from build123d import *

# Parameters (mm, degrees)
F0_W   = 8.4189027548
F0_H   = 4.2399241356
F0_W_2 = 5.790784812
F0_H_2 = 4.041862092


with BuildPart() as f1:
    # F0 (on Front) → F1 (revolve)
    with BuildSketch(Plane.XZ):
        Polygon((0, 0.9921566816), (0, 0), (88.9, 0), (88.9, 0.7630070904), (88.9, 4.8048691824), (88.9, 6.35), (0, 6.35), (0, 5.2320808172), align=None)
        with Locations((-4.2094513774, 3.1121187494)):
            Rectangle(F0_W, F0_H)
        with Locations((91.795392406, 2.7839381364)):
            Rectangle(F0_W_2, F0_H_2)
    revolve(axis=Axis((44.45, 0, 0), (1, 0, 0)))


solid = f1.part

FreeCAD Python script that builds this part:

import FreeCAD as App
import Part
import Sketcher

V = App.Vector
Q = App.Units.Quantity

doc = App.newDocument("Part")
body = doc.addObject("PartDesign::Body", "Body")

sketch1 = body.newObject("Sketcher::SketchObject", "Sketch")
sketch1.AttachmentSupport = (doc.getObject("XZ_Plane"), [""])
sketch1.MapMode = "FlatFace"
sketch1.addGeometry(Part.LineSegment(V(0, 0, 0), V(88.9, 0, 0)), False)
sketch1.addGeometry(Part.LineSegment(V(88.9, 0, 0), V(88.9, 0.8, 0)), False)
sketch1.addGeometry(Part.LineSegment(V(88.9, 0.8, 0), V(94.7, 0.8, 0)), False)
sketch1.addGeometry(Part.LineSegment(V(94.7, 0.8, 0), V(94.7, 4.8, 0)), False)
sketch1.addGeometry(Part.LineSegment(V(94.7, 4.8, 0), V(88.9, 4.8, 0)), False)
sketch1.addGeometry(Part.LineSegment(V(88.9, 4.8, 0), V(88.9, 6.3, 0)), False)
sketch1.addGeometry(Part.LineSegment(V(88.9, 6.3, 0), V(0, 6.3, 0)), False)
sketch1.addGeometry(Part.LineSegment(V(0, 6.3, 0), V(0, 5.2, 0)), False)
sketch1.addGeometry(Part.LineSegment(V(0, 5.2, 0), V(-8.4, 5.2, 0)), False)
sketch1.addGeometry(Part.LineSegment(V(-8.4, 5.2, 0), V(-8.4, 1, 0)), False)
sketch1.addGeometry(Part.LineSegment(V(-8.4, 1, 0), V(0, 1, 0)), False)
sketch1.addGeometry(Part.LineSegment(V(0, 1, 0), V(0, 0, 0)), False)
sketch1.addConstraint(Sketcher.Constraint("Coincident", 0, 2, 1, 1))
sketch1.addConstraint(Sketcher.Constraint("Coincident", 1, 2, 2, 1))
sketch1.addConstraint(Sketcher.Constraint("Coincident", 2, 2, 3, 1))
sketch1.addConstraint(Sketcher.Constraint("Coincident", 3, 2, 4, 1))
sketch1.addConstraint(Sketcher.Constraint("Coincident", 4, 2, 5, 1))
sketch1.addConstraint(Sketcher.Constraint("Coincident", 5, 2, 6, 1))
sketch1.addConstraint(Sketcher.Constraint("Coincident", 6, 2, 7, 1))
sketch1.addConstraint(Sketcher.Constraint("Coincident", 7, 2, 8, 1))
sketch1.addConstraint(Sketcher.Constraint("Coincident", 8, 2, 9, 1))
sketch1.addConstraint(Sketcher.Constraint("Coincident", 9, 2, 10, 1))
sketch1.addConstraint(Sketcher.Constraint("Coincident", 10, 2, 11, 1))
sketch1.addConstraint(Sketcher.Constraint("Coincident", 11, 2, 0, 1))
sketch1.addConstraint(Sketcher.Constraint("Horizontal", 0))
sketch1.addConstraint(Sketcher.Constraint("Vertical", 1))
sketch1.addConstraint(Sketcher.Constraint("Horizontal", 2))
sketch1.addConstraint(Sketcher.Constraint("Vertical", 3))
sketch1.addConstraint(Sketcher.Constraint("Horizontal", 4))
sketch1.addConstraint(Sketcher.Constraint("Vertical", 5))
sketch1.addConstraint(Sketcher.Constraint("Horizontal", 6))
sketch1.addConstraint(Sketcher.Constraint("Vertical", 7))
sketch1.addConstraint(Sketcher.Constraint("Horizontal", 8))
sketch1.addConstraint(Sketcher.Constraint("Vertical", 9))
sketch1.addConstraint(Sketcher.Constraint("Horizontal", 10))
sketch1.addConstraint(Sketcher.Constraint("Vertical", 11))
sketch1.addConstraint(Sketcher.Constraint("Coincident", 11, 2, -1, 1))
sketch1.addConstraint(Sketcher.Constraint("PointOnObject", 6, 2, -2))
sketch1.addConstraint(Sketcher.Constraint("Vertical", 1, 2, 4, 2))
sketch1.addConstraint(Sketcher.Constraint("DistanceX", 0, 1, 0, 2, Q("3.5 in")))
sketch1.addConstraint(Sketcher.Constraint("DistanceY", -1, 1, 5, 2, Q("0.25 in")))
sketch1.addConstraint(Sketcher.Constraint("DistanceY", 5, 1, 5, 2, Q("1.545131 mm")))
sketch1.addConstraint(Sketcher.Constraint("DistanceY", 7, 2, 7, 1, Q("1.117919 mm")))
sketch1.addConstraint(Sketcher.Constraint("DistanceX", 2, 1, 2, 2, Q("5.790785 mm")))
sketch1.addConstraint(Sketcher.Constraint("DistanceX", 8, 2, 8, 1, Q("8.418903 mm")))
sketch1.addConstraint(Sketcher.Constraint("DistanceY", 1, 1, 1, 2, Q("0.763007 mm")))
sketch1.addConstraint(Sketcher.Constraint("DistanceY", 9, 2, 9, 1, Q("4.239924 mm")))
revolution = body.newObject("PartDesign::Revolution", "Revolution")
revolution.Profile = sketch1
revolution.ReferenceAxis = (sketch1, ["H_Axis"])
revolution.Angle = 360

doc.recompute()
